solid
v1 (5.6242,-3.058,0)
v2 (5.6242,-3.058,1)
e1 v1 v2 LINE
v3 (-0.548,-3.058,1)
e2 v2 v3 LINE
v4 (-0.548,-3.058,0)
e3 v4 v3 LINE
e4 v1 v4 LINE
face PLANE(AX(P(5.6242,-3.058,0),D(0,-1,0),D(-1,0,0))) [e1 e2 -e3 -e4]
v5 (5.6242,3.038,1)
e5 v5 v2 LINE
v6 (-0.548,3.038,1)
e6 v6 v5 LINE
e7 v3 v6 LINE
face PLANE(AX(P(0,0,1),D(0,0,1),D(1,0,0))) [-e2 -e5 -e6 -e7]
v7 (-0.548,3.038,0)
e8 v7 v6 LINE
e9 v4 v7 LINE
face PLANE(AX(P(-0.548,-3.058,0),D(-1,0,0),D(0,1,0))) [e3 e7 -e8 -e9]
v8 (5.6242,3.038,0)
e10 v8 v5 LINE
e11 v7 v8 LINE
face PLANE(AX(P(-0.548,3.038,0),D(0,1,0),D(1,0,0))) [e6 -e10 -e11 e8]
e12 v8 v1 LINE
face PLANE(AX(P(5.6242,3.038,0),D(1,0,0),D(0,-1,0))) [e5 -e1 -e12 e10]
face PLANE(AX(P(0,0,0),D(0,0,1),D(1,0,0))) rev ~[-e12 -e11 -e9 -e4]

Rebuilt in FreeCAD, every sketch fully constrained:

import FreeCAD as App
import Part
import Sketcher

V = App.Vector
Q = App.Units.Quantity


def add_polygon(sketch, points):
    """Adds a closed chain of lines whose ends are joined by coincident constraints."""
    first, n = sketch.GeometryCount, len(points)
    for a, b in zip(points, points[1:] + points[:1]):
        sketch.addGeometry(Part.LineSegment(App.Vector(*a, 0), App.Vector(*b, 0)), False)
    for i in range(n):
        sketch.addConstraint(Sketcher.Constraint("Coincident", first + i, 2, first + (i + 1) % n, 1))

doc = App.newDocument("Part")
params = doc.addObject("Spreadsheet::Sheet", "Params")
for row, (alias, value) in enumerate([
    ("sketch1_height", "0.24 in"),
    ("sketch1_width", "0.243 in"),
    ("pad1_length", "1 mm"),
], start=1):
    params.set(f"A{row}", alias)
    params.set(f"B{row}", "=" + value)
    params.setAlias(f"B{row}", alias)

body = doc.addObject("PartDesign::Body", "Body")

# Sketch on XY plane
sketch1 = doc.addObject("Sketcher::SketchObject", "Sketch")
body.addObject(sketch1)
sketch1.AttachmentSupport = (doc.XY_Plane, [""])
sketch1.MapMode = "FlatFace"
add_polygon(sketch1, [(6, 3), (-1, 3), (-1, -3), (6, -3)])  # lines 0-3
sketch1.addConstraint(Sketcher.Constraint("Horizontal", 0))
sketch1.addConstraint(Sketcher.Constraint("Vertical", 1))
sketch1.addConstraint(Sketcher.Constraint("Horizontal", 2))
sketch1.addConstraint(Sketcher.Constraint("Vertical", 3))
sketch1.addConstraint(Sketcher.Constraint("DistanceY", 1, 2, 1, 1, Q("0.24 in")))
sketch1.addConstraint(Sketcher.Constraint("DistanceX", 0, 2, 0, 1, Q("0.243 in")))
sketch1.addConstraint(Sketcher.Constraint("DistanceY", -1, 1, 0, 2, Q("0.1196 in")))
sketch1.addConstraint(Sketcher.Constraint("DistanceX", 0, 2, -1, 1, Q("0.548 mm")))
sketch1.setExpression("Constraints[8]", "Params.sketch1_height")
sketch1.setExpression("Constraints[9]", "Params.sketch1_width")
pad1 = doc.addObject("PartDesign::Pad", "Pad")
body.addObject(pad1)
pad1.Profile = sketch1
pad1.setExpression("Length", "Params.pad1_length")

doc.recompute()
